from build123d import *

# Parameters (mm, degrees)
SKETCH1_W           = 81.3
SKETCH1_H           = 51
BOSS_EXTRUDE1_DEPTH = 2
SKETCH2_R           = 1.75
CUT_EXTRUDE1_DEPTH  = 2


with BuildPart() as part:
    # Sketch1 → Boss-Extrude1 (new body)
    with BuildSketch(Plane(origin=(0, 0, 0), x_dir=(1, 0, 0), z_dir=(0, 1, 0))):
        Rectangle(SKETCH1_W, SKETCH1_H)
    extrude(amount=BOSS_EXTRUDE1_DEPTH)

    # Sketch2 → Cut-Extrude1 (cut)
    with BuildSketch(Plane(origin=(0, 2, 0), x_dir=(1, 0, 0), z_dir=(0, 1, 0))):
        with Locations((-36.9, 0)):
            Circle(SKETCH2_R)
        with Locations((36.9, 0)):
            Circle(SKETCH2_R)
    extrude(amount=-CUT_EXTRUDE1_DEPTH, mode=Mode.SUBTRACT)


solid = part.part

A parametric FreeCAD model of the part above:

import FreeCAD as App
import Part
import Sketcher

V = App.Vector
Q = App.Units.Quantity


def add_polygon(sketch, points):
    """Adds a closed chain of lines whose ends are joined by coincident constraints."""
    first, n = sketch.GeometryCount, len(points)
    for a, b in zip(points, points[1:] + points[:1]):
        sketch.addGeometry(Part.LineSegment(App.Vector(*a, 0), App.Vector(*b, 0)), False)
    for i in range(n):
        sketch.addConstraint(Sketcher.Constraint("Coincident", first + i, 2, first + (i + 1) % n, 1))

doc = App.newDocument("Part")
body = doc.addObject("PartDesign::Body", "Body")

# Sketch on XZ plane
sketch1 = body.newObject("Sketcher::SketchObject", "Sketch")
sketch1.AttachmentSupport = (doc.getObject("XZ_Plane"), [""])
sketch1.MapMode = "FlatFace"
add_polygon(sketch1, [(-41, -26), (-41, 26), (41, 26), (41, -26)])  # lines 0-3
sketch1.addConstraint(Sketcher.Constraint("Vertical", 0))
sketch1.addConstraint(Sketcher.Constraint("Horizontal", 1))
sketch1.addConstraint(Sketcher.Constraint("Vertical", 2))
sketch1.addConstraint(Sketcher.Constraint("Horizontal", 3))
sketch1.addConstraint(Sketcher.Constraint("Symmetric", 0, 2, 2, 2, -1, 1))
sketch1.addConstraint(Sketcher.Constraint("DistanceY", 0, 1, 0, 2, Q("51 mm")))
sketch1.addConstraint(Sketcher.Constraint("DistanceX", 1, 1, 1, 2, Q("81.3 mm")))
pad1 = body.newObject("PartDesign::Pad", "Pad")
pad1.Profile = sketch1
pad1.Length = 2
pad1.Reversed = True

# Sketch on XZ plane
sketch2 = body.newObject("Sketcher::SketchObject", "Sketch001")
sketch2.AttachmentSupport = (doc.getObject("XZ_Plane"), [""])
sketch2.MapMode = "FlatFace"
sketch2.AttachmentOffset = App.Placement(V(0, 0, -2), App.Rotation())
sketch2.addGeometry(Part.Circle(V(-36.9, 0, 0), V(0, 0, 1), 1.8), False)
sketch2.addGeometry(Part.Circle(V(36.9, 0, 0), V(0, 0, 1), 1.8), False)
sketch2.addConstraint(Sketcher.Constraint("Equal", 0, 1))
sketch2.addConstraint(Sketcher.Constraint("Symmetric", 0, 3, 1, 3, -1, 1))
sketch2.addConstraint(Sketcher.Constraint("PointOnObject", 0, 3, -1))
sketch2.addConstraint(Sketcher.Constraint("Diameter", 0, Q("3.5 mm")))
sketch2.addConstraint(Sketcher.Constraint("DistanceX", 0, 3, -1, 1, Q("36.9 mm")))
pocket1 = body.newObject("PartDesign::Pocket", "Pocket")
pocket1.Profile = sketch2
pocket1.Length = 2
pocket1.Reversed = True

doc.recompute()
